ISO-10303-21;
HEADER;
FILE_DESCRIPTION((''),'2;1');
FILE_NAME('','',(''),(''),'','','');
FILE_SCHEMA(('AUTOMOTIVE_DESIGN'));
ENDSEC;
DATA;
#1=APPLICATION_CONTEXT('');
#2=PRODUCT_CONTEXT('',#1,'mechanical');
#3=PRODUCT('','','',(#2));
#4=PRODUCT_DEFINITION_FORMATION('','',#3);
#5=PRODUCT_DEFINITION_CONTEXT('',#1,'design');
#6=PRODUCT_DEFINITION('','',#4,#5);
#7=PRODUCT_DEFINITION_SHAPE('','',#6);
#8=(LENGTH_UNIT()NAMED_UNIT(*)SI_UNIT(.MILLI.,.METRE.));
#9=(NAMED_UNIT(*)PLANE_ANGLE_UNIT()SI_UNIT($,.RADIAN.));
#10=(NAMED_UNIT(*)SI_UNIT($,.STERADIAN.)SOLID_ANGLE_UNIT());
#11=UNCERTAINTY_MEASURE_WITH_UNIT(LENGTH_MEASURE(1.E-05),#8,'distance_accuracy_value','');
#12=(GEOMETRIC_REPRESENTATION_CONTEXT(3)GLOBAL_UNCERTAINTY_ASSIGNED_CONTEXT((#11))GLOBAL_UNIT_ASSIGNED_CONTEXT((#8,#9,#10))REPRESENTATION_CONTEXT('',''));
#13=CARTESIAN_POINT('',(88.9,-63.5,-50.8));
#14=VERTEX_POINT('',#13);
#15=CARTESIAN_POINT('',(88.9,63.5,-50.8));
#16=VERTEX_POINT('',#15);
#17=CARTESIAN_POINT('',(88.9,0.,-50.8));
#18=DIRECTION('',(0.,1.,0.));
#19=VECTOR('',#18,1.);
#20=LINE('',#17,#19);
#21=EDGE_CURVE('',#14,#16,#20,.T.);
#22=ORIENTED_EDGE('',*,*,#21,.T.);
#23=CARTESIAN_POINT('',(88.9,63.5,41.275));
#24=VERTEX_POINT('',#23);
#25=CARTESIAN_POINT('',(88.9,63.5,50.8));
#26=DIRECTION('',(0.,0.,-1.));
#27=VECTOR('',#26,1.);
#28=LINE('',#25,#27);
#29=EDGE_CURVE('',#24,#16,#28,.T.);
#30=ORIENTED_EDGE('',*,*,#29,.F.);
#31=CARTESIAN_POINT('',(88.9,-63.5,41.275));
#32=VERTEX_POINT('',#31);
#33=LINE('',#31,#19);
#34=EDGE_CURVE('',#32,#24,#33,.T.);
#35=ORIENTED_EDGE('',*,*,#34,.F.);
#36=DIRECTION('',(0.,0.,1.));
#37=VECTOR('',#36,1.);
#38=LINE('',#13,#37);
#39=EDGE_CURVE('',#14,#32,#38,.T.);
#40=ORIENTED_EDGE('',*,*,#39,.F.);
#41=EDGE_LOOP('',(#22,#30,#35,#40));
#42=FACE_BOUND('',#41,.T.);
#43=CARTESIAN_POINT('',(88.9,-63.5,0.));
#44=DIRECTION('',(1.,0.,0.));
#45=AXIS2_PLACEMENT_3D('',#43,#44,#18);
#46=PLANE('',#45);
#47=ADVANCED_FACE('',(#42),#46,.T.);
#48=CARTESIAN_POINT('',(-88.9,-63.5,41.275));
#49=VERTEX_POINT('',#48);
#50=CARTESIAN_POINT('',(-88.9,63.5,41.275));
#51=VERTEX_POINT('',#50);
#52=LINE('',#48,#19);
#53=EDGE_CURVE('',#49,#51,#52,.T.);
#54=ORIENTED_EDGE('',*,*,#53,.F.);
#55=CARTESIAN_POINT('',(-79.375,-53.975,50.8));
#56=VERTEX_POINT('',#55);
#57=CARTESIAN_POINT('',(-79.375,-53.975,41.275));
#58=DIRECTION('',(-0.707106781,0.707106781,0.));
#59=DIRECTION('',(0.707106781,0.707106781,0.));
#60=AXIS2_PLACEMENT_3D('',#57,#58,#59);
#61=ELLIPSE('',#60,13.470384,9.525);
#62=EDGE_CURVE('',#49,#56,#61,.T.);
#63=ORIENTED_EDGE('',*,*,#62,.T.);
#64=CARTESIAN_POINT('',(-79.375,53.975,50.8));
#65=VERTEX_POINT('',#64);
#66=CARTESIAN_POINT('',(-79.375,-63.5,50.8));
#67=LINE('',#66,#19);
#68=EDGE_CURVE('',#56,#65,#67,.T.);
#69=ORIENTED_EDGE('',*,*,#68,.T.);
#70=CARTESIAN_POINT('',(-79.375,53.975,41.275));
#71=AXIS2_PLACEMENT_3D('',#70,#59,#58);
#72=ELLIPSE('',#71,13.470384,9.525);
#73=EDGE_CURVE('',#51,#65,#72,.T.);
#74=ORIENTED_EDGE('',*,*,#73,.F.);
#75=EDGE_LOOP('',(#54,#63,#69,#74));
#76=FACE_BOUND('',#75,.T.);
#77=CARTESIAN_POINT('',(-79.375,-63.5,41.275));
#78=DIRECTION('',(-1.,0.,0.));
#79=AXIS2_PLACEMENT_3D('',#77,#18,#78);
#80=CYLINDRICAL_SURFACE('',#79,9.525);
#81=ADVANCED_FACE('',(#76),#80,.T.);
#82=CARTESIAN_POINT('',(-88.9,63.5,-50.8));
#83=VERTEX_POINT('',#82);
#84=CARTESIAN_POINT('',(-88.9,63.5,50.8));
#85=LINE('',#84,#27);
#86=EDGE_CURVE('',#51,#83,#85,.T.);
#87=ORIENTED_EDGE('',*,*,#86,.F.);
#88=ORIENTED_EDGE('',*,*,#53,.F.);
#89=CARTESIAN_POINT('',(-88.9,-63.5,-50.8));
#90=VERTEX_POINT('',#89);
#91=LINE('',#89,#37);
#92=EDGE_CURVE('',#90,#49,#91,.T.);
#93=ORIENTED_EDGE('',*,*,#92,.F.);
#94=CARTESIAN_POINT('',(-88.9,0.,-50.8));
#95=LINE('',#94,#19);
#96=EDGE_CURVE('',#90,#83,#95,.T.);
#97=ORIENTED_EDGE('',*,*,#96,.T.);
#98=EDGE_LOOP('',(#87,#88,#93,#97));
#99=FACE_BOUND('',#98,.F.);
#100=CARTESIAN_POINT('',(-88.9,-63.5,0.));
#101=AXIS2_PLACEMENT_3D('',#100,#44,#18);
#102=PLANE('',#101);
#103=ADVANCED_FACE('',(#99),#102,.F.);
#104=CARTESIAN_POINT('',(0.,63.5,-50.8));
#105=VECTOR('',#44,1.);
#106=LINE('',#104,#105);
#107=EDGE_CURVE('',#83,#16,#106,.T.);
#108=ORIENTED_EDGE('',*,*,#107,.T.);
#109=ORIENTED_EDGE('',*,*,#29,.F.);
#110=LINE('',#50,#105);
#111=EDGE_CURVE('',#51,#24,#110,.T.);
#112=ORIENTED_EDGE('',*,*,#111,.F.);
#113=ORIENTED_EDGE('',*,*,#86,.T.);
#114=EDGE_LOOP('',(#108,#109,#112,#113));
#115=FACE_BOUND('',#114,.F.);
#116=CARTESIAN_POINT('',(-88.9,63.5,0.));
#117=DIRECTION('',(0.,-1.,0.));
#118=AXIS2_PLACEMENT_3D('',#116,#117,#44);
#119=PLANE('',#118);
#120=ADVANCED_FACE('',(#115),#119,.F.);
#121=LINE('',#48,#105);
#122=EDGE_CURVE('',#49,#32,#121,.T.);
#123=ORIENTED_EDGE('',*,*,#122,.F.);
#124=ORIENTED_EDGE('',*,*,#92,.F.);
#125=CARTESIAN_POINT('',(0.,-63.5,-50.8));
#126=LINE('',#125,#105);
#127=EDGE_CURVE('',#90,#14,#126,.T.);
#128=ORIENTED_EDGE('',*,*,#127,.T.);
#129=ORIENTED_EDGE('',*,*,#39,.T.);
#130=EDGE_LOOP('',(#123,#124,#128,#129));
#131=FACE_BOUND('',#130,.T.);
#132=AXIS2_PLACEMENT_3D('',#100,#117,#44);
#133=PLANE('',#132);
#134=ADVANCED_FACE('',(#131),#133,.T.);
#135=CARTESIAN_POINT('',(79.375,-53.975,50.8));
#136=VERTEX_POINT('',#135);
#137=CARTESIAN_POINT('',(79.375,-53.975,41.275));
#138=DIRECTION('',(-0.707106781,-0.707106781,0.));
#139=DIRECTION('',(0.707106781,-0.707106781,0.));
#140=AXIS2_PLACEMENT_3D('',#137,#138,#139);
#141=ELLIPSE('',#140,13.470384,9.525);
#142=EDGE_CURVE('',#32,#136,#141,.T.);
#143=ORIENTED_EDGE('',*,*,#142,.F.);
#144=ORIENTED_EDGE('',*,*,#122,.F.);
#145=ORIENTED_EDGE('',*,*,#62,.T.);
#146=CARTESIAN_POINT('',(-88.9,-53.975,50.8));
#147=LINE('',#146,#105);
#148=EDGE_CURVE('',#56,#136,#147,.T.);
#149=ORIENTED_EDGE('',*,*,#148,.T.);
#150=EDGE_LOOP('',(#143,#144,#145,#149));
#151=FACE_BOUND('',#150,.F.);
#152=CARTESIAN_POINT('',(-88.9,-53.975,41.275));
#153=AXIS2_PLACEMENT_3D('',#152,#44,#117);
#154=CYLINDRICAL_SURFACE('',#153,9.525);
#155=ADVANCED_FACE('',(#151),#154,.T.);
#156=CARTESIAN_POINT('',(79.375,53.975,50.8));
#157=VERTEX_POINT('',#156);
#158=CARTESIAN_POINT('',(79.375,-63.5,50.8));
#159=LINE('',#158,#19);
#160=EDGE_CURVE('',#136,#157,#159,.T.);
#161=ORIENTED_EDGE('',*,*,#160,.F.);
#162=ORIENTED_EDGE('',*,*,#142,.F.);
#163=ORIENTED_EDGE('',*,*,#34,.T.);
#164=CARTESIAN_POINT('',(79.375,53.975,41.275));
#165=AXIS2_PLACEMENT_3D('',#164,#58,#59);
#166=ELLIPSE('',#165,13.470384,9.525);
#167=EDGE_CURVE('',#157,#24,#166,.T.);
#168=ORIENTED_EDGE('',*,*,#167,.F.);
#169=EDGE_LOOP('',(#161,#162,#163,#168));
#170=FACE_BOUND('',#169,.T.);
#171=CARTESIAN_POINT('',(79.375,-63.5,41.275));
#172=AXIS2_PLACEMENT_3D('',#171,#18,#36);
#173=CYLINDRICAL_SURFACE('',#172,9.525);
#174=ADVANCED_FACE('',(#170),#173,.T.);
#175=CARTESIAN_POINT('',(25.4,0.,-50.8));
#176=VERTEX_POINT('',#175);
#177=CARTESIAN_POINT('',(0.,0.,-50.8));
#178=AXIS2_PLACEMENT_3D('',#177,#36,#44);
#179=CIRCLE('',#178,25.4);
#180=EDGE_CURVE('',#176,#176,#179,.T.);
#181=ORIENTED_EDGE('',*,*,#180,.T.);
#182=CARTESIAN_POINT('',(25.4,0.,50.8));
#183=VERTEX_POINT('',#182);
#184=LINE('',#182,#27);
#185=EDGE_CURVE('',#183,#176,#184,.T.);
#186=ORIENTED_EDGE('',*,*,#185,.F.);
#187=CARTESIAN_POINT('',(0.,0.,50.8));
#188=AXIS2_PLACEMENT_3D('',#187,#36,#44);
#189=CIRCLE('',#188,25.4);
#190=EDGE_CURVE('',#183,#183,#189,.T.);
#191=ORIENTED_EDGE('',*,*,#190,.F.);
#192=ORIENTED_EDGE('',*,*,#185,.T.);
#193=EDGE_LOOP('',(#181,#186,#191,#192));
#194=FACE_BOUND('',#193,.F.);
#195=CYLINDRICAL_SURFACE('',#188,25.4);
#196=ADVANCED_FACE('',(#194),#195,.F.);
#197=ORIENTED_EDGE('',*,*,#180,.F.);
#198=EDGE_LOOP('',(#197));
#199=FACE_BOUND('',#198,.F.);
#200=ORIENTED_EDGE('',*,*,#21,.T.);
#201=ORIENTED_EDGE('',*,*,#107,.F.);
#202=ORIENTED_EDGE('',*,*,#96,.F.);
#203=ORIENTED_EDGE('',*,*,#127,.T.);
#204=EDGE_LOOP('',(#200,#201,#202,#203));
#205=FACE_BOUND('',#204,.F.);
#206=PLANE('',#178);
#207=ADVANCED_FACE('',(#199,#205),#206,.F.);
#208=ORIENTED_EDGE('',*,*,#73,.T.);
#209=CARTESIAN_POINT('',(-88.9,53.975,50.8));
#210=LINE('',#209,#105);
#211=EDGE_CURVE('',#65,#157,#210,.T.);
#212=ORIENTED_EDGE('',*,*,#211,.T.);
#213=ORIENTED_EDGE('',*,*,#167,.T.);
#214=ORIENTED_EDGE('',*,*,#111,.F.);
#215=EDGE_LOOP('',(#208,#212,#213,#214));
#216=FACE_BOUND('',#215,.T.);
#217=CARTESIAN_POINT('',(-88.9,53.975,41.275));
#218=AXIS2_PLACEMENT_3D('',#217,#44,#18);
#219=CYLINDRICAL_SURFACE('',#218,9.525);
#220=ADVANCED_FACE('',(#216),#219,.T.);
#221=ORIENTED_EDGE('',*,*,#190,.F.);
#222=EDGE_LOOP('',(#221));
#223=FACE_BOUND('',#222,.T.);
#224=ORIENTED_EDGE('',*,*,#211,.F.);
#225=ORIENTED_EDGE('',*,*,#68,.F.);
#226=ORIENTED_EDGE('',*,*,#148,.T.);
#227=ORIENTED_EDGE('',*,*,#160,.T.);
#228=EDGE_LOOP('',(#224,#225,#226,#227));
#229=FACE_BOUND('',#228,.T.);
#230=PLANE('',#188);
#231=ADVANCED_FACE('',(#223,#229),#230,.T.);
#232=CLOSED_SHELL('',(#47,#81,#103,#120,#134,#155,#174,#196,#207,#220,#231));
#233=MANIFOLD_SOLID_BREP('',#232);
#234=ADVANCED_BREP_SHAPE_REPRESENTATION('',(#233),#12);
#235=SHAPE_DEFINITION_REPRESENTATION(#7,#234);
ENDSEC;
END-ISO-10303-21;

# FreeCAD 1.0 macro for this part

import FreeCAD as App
import Part
import Sketcher
from FreeCAD import Vector
Q = App.Units.Quantity


def edges_at(feature, points):
    """Names of the edges that pass closest to the given points."""
    edges = feature.Shape.Edges
    near = lambda p: min(range(len(edges)), key=lambda i: edges[i].distToShape(Part.Vertex(*p))[0])
    return sorted({f"Edge{near(p) + 1}" for p in points})

doc = App.newDocument("Part")
params = doc.addObject("Spreadsheet::Sheet", "Params")
for row, (alias, value) in enumerate([
    ("sketch1_width", "7 in"),
    ("sketch1_height", "5 in"),
    ("pad1_length", "4 in"),
    ("sketch2_diameter", "2 in"),
    ("fillet_radius", "0.375 in"),
], start=1):
    params.set(f"A{row}", alias)
    params.set(f"B{row}", "=" + value)
    params.setAlias(f"B{row}", alias)

body = doc.addObject("PartDesign::Body", "Body")

sketch1 = body.newObject("Sketcher::SketchObject", "Sketch")
sketch1.AttachmentSupport = (doc.getObject("XY_Plane"), [""])
sketch1.MapMode = "FlatFace"
sketch1.addGeometry([
    Part.LineSegment(Vector(-89, 64, 0), Vector(-89, -64, 0)),
    Part.LineSegment(Vector(-89, -64, 0), Vector(89, -64, 0)),
    Part.LineSegment(Vector(89, -64, 0), Vector(89, 64, 0)),
    Part.LineSegment(Vector(89, 64, 0), Vector(-89, 64, 0)),
], False)
sketch1.addConstraint([
    Sketcher.Constraint("Coincident", 0, 2, 1, 1),
    Sketcher.Constraint("Coincident", 1, 2, 2, 1),
    Sketcher.Constraint("Coincident", 2, 2, 3, 1),
    Sketcher.Constraint("Coincident", 3, 2, 0, 1),
    Sketcher.Constraint("Vertical", 0),
    Sketcher.Constraint("Horizontal", 1),
    Sketcher.Constraint("Vertical", 2),
    Sketcher.Constraint("Horizontal", 3),
    Sketcher.Constraint("Symmetric", 0, 2, 2, 2, -1, 1),
    Sketcher.Constraint("DistanceX", 1, 1, 1, 2, Q("7 in")),
    Sketcher.Constraint("DistanceY", 0, 2, 0, 1, Q("5 in")),
])
sketch1.setExpression("Constraints[9]", "Params.sketch1_width")
sketch1.setExpression("Constraints[10]", "Params.sketch1_height")
pad1 = body.newObject("PartDesign::Pad", "Pad")
pad1.Profile = sketch1
pad1.setExpression("Length", "Params.pad1_length")
pad1.Midplane = True

sketch2 = body.newObject("Sketcher::SketchObject", "Sketch001")
sketch2.AttachmentSupport = (doc.getObject("XY_Plane"), [""])
sketch2.MapMode = "FlatFace"
sketch2.AttachmentOffset = App.Placement(Vector(0, 0, 2 * 25.4), App.Rotation())
sketch2.addGeometry(Part.Circle(Vector(0, 0, 0), Vector(0, 0, 1), 25), False)
sketch2.addConstraint([
    Sketcher.Constraint("Coincident", 0, 3, -1, 1),
    Sketcher.Constraint("Diameter", 0, Q("2 in")),
])
sketch2.setExpression("Constraints[1]", "Params.sketch2_diameter")
pocket1 = body.newObject("PartDesign::Pocket", "Pocket")
pocket1.Profile = sketch2
pocket1.Type = "ThroughAll"
doc.recompute()

fillet = body.newObject("PartDesign::Fillet", "Fillet")
fillet.Base = (pocket1, edges_at(pocket1, [
    (0, -63.5, 50.8),
    (-88.9, 0, 50.8),
    (88.9, 0, 50.8),
    (0, 63.5, 50.8),
]))
fillet.setExpression("Radius", "Params.fillet_radius")

doc.recompute()
